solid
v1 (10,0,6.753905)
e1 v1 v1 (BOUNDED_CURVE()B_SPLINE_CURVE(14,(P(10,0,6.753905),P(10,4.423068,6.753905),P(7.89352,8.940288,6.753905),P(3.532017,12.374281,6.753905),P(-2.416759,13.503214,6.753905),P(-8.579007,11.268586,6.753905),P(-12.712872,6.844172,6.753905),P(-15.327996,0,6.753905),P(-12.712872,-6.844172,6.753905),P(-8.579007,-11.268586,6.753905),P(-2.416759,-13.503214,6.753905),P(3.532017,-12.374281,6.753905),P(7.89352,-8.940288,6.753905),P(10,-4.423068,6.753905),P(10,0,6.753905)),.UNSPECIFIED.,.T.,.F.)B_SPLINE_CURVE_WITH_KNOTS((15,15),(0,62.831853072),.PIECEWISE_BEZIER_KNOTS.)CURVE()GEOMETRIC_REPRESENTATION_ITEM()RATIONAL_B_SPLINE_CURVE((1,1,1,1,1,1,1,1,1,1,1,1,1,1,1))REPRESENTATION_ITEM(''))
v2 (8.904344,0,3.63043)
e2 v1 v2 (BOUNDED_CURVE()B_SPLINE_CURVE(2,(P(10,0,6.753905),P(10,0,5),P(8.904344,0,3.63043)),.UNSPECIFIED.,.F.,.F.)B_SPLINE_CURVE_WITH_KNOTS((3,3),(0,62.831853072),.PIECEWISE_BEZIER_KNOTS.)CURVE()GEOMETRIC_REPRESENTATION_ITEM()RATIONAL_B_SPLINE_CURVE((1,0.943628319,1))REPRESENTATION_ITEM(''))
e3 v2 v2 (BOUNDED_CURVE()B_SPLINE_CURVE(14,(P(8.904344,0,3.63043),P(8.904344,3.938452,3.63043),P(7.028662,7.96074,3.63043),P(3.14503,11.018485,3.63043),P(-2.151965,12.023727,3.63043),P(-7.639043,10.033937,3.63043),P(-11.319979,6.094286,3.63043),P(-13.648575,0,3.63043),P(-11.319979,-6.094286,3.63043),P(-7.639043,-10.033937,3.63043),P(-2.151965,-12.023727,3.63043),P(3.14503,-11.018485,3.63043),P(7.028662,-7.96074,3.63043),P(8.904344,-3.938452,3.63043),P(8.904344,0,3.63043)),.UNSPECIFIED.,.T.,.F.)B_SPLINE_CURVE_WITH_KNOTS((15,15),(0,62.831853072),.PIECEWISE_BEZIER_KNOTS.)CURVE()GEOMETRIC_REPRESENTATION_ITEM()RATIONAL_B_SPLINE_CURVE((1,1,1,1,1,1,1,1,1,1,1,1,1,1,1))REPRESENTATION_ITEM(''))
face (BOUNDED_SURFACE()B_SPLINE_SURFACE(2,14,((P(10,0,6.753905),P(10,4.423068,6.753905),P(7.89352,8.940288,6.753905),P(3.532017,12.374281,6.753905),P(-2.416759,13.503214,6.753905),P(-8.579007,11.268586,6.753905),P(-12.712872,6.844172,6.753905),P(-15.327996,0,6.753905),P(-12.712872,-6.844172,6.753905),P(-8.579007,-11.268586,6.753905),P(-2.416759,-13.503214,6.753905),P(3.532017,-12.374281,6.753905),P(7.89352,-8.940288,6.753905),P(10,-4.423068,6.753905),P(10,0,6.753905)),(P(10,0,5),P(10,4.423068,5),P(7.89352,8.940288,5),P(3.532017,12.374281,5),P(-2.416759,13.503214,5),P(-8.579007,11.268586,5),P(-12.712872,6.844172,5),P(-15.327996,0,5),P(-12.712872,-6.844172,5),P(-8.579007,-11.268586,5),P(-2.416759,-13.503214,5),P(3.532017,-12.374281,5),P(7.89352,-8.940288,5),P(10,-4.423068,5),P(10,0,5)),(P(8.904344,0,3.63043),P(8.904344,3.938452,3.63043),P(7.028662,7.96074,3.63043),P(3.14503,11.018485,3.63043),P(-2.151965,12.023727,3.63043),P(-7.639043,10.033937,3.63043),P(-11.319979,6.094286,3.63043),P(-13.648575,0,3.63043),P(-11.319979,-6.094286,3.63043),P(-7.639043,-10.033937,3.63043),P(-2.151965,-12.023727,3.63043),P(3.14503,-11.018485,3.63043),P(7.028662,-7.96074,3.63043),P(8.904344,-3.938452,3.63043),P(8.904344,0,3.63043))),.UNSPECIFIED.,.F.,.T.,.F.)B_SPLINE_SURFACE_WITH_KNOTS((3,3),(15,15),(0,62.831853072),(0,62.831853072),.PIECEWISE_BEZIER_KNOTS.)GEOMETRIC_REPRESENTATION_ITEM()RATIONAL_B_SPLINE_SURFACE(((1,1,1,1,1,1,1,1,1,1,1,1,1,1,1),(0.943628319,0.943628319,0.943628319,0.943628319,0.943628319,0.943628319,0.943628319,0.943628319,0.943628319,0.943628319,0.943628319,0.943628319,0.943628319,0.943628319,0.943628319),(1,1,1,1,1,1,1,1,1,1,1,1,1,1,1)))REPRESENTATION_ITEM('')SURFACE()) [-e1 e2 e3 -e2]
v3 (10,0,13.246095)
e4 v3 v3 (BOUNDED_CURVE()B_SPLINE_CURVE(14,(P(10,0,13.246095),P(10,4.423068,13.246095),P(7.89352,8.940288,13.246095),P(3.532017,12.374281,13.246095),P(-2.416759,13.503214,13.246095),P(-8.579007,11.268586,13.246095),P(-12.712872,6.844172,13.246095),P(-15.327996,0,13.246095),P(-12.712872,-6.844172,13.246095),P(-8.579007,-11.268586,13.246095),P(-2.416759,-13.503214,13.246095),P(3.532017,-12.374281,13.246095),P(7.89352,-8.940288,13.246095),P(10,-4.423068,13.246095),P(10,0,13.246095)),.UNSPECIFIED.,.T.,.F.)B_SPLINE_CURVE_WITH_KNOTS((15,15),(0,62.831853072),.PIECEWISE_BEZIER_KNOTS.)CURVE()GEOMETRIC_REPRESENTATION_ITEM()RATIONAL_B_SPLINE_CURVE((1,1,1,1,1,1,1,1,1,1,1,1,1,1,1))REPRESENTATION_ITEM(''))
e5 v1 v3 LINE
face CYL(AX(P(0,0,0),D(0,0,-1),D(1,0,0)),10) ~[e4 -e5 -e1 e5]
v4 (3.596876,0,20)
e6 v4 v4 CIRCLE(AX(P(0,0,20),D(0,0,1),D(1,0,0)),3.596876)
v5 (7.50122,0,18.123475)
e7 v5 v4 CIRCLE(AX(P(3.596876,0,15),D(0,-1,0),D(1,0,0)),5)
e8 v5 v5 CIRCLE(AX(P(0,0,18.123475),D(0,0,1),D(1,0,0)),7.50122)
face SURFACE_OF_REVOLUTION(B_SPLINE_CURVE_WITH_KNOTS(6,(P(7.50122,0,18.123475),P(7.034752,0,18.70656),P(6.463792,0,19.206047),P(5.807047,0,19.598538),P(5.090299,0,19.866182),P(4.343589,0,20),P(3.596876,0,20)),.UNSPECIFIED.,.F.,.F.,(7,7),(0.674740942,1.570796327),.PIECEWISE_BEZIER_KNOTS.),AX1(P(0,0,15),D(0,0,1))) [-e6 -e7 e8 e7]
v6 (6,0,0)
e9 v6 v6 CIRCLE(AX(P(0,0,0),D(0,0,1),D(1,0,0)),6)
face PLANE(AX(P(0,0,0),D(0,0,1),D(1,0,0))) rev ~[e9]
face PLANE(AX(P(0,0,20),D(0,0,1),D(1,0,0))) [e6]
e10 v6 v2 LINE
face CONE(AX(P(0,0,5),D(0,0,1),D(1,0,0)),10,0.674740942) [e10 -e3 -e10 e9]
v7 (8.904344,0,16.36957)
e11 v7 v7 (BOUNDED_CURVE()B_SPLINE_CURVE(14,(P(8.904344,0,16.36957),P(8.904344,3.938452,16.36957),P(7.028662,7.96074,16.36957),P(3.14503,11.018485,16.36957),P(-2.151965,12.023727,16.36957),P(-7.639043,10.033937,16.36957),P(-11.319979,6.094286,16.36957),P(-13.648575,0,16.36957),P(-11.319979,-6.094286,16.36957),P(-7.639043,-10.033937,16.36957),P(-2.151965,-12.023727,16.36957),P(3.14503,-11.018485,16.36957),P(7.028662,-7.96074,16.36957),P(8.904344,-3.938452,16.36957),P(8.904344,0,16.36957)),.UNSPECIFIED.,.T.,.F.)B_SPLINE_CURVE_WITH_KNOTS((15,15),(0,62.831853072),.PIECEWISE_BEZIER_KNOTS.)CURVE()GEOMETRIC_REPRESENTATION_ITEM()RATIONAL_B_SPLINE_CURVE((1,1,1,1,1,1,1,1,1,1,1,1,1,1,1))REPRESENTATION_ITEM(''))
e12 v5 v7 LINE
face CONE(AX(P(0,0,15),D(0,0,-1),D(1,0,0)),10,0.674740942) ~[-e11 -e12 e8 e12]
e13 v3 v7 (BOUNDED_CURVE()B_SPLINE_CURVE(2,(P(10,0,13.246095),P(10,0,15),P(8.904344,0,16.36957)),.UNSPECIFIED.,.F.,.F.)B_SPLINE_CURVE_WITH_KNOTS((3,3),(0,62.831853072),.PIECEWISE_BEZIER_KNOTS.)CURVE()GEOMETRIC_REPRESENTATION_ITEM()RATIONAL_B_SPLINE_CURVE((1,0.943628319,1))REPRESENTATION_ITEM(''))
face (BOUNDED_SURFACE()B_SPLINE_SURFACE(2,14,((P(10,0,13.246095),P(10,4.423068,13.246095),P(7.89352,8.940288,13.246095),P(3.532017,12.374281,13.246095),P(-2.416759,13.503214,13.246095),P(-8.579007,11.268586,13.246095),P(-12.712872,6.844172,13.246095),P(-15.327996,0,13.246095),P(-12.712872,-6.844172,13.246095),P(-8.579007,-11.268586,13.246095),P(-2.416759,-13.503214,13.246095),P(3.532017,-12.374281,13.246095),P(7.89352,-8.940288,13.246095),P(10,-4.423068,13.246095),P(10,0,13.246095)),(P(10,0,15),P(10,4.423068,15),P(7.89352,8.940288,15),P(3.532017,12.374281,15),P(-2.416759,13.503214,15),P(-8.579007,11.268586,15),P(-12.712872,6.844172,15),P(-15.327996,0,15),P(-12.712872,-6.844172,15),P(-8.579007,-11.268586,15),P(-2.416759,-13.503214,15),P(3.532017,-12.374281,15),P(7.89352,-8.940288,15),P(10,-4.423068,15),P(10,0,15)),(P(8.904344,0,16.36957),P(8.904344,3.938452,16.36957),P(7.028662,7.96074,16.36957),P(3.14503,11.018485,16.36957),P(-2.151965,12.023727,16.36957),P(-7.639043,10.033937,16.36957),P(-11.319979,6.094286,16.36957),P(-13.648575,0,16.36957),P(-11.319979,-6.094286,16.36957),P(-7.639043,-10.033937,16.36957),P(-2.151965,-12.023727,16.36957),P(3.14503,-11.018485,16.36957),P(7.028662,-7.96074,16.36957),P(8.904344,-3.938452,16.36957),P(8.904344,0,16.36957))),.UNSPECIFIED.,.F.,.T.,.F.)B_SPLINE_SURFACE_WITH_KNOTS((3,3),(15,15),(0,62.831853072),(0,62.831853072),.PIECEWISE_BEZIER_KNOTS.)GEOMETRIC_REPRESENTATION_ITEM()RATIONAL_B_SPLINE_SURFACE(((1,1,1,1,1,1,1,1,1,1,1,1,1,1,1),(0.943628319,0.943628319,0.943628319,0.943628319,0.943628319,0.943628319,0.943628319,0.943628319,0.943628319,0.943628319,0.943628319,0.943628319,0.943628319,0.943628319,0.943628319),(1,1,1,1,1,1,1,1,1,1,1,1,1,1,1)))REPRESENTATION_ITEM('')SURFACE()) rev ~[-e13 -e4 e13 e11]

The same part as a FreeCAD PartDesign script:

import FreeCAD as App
import Part
import Sketcher

V = App.Vector
Q = App.Units.Quantity


def edges_at(feature, points):
    """Names of the edges that pass closest to the given points."""
    edges = feature.Shape.Edges
    near = lambda p: min(range(len(edges)), key=lambda i: edges[i].distToShape(Part.Vertex(*p))[0])
    return sorted({f"Edge{near(p) + 1}" for p in points})

doc = App.newDocument("Part")
body = doc.addObject("PartDesign::Body", "Body")

# Sketch on XY plane
sketch1 = body.newObject("Sketcher::SketchObject", "Sketch")
sketch1.AttachmentSupport = (doc.getObject("XY_Plane"), [""])
sketch1.MapMode = "FlatFace"
sketch1.addGeometry(Part.Circle(V(0, 0, 0), V(0, 0, 1), 10), False)
sketch1.addConstraint(Sketcher.Constraint("Coincident", 0, 3, -1, 1))
sketch1.addConstraint(Sketcher.Constraint("Diameter", 0, Q("20 mm")))
pad1 = body.newObject("PartDesign::Pad", "Pad")
pad1.Profile = sketch1
pad1.Length = 20
doc.recompute()

chamfer = body.newObject("PartDesign::Chamfer", "Chamfer")
chamfer.Base = (pad1, edges_at(pad1, [(-10, 0, 20)]))
chamfer.ChamferType = "Two distances"
chamfer.Size = 4
chamfer.Size2 = 5
chamfer.FlipDirection = True
doc.recompute()

chamfer2 = body.newObject("PartDesign::Chamfer", "Chamfer001")
chamfer2.Base = (chamfer, edges_at(chamfer, [(-10, 0, 0)]))
chamfer2.ChamferType = "Two distances"
chamfer2.Size = 4
chamfer2.Size2 = 5
chamfer2.FlipDirection = True
doc.recompute()

fillet = body.newObject("PartDesign::Fillet", "Fillet")
fillet.Base = (chamfer2, edges_at(chamfer2, [(-10, 0, 15), (-6, 0, 20), (-10, 0, 5)]))
fillet.Radius = 5

doc.recompute()
